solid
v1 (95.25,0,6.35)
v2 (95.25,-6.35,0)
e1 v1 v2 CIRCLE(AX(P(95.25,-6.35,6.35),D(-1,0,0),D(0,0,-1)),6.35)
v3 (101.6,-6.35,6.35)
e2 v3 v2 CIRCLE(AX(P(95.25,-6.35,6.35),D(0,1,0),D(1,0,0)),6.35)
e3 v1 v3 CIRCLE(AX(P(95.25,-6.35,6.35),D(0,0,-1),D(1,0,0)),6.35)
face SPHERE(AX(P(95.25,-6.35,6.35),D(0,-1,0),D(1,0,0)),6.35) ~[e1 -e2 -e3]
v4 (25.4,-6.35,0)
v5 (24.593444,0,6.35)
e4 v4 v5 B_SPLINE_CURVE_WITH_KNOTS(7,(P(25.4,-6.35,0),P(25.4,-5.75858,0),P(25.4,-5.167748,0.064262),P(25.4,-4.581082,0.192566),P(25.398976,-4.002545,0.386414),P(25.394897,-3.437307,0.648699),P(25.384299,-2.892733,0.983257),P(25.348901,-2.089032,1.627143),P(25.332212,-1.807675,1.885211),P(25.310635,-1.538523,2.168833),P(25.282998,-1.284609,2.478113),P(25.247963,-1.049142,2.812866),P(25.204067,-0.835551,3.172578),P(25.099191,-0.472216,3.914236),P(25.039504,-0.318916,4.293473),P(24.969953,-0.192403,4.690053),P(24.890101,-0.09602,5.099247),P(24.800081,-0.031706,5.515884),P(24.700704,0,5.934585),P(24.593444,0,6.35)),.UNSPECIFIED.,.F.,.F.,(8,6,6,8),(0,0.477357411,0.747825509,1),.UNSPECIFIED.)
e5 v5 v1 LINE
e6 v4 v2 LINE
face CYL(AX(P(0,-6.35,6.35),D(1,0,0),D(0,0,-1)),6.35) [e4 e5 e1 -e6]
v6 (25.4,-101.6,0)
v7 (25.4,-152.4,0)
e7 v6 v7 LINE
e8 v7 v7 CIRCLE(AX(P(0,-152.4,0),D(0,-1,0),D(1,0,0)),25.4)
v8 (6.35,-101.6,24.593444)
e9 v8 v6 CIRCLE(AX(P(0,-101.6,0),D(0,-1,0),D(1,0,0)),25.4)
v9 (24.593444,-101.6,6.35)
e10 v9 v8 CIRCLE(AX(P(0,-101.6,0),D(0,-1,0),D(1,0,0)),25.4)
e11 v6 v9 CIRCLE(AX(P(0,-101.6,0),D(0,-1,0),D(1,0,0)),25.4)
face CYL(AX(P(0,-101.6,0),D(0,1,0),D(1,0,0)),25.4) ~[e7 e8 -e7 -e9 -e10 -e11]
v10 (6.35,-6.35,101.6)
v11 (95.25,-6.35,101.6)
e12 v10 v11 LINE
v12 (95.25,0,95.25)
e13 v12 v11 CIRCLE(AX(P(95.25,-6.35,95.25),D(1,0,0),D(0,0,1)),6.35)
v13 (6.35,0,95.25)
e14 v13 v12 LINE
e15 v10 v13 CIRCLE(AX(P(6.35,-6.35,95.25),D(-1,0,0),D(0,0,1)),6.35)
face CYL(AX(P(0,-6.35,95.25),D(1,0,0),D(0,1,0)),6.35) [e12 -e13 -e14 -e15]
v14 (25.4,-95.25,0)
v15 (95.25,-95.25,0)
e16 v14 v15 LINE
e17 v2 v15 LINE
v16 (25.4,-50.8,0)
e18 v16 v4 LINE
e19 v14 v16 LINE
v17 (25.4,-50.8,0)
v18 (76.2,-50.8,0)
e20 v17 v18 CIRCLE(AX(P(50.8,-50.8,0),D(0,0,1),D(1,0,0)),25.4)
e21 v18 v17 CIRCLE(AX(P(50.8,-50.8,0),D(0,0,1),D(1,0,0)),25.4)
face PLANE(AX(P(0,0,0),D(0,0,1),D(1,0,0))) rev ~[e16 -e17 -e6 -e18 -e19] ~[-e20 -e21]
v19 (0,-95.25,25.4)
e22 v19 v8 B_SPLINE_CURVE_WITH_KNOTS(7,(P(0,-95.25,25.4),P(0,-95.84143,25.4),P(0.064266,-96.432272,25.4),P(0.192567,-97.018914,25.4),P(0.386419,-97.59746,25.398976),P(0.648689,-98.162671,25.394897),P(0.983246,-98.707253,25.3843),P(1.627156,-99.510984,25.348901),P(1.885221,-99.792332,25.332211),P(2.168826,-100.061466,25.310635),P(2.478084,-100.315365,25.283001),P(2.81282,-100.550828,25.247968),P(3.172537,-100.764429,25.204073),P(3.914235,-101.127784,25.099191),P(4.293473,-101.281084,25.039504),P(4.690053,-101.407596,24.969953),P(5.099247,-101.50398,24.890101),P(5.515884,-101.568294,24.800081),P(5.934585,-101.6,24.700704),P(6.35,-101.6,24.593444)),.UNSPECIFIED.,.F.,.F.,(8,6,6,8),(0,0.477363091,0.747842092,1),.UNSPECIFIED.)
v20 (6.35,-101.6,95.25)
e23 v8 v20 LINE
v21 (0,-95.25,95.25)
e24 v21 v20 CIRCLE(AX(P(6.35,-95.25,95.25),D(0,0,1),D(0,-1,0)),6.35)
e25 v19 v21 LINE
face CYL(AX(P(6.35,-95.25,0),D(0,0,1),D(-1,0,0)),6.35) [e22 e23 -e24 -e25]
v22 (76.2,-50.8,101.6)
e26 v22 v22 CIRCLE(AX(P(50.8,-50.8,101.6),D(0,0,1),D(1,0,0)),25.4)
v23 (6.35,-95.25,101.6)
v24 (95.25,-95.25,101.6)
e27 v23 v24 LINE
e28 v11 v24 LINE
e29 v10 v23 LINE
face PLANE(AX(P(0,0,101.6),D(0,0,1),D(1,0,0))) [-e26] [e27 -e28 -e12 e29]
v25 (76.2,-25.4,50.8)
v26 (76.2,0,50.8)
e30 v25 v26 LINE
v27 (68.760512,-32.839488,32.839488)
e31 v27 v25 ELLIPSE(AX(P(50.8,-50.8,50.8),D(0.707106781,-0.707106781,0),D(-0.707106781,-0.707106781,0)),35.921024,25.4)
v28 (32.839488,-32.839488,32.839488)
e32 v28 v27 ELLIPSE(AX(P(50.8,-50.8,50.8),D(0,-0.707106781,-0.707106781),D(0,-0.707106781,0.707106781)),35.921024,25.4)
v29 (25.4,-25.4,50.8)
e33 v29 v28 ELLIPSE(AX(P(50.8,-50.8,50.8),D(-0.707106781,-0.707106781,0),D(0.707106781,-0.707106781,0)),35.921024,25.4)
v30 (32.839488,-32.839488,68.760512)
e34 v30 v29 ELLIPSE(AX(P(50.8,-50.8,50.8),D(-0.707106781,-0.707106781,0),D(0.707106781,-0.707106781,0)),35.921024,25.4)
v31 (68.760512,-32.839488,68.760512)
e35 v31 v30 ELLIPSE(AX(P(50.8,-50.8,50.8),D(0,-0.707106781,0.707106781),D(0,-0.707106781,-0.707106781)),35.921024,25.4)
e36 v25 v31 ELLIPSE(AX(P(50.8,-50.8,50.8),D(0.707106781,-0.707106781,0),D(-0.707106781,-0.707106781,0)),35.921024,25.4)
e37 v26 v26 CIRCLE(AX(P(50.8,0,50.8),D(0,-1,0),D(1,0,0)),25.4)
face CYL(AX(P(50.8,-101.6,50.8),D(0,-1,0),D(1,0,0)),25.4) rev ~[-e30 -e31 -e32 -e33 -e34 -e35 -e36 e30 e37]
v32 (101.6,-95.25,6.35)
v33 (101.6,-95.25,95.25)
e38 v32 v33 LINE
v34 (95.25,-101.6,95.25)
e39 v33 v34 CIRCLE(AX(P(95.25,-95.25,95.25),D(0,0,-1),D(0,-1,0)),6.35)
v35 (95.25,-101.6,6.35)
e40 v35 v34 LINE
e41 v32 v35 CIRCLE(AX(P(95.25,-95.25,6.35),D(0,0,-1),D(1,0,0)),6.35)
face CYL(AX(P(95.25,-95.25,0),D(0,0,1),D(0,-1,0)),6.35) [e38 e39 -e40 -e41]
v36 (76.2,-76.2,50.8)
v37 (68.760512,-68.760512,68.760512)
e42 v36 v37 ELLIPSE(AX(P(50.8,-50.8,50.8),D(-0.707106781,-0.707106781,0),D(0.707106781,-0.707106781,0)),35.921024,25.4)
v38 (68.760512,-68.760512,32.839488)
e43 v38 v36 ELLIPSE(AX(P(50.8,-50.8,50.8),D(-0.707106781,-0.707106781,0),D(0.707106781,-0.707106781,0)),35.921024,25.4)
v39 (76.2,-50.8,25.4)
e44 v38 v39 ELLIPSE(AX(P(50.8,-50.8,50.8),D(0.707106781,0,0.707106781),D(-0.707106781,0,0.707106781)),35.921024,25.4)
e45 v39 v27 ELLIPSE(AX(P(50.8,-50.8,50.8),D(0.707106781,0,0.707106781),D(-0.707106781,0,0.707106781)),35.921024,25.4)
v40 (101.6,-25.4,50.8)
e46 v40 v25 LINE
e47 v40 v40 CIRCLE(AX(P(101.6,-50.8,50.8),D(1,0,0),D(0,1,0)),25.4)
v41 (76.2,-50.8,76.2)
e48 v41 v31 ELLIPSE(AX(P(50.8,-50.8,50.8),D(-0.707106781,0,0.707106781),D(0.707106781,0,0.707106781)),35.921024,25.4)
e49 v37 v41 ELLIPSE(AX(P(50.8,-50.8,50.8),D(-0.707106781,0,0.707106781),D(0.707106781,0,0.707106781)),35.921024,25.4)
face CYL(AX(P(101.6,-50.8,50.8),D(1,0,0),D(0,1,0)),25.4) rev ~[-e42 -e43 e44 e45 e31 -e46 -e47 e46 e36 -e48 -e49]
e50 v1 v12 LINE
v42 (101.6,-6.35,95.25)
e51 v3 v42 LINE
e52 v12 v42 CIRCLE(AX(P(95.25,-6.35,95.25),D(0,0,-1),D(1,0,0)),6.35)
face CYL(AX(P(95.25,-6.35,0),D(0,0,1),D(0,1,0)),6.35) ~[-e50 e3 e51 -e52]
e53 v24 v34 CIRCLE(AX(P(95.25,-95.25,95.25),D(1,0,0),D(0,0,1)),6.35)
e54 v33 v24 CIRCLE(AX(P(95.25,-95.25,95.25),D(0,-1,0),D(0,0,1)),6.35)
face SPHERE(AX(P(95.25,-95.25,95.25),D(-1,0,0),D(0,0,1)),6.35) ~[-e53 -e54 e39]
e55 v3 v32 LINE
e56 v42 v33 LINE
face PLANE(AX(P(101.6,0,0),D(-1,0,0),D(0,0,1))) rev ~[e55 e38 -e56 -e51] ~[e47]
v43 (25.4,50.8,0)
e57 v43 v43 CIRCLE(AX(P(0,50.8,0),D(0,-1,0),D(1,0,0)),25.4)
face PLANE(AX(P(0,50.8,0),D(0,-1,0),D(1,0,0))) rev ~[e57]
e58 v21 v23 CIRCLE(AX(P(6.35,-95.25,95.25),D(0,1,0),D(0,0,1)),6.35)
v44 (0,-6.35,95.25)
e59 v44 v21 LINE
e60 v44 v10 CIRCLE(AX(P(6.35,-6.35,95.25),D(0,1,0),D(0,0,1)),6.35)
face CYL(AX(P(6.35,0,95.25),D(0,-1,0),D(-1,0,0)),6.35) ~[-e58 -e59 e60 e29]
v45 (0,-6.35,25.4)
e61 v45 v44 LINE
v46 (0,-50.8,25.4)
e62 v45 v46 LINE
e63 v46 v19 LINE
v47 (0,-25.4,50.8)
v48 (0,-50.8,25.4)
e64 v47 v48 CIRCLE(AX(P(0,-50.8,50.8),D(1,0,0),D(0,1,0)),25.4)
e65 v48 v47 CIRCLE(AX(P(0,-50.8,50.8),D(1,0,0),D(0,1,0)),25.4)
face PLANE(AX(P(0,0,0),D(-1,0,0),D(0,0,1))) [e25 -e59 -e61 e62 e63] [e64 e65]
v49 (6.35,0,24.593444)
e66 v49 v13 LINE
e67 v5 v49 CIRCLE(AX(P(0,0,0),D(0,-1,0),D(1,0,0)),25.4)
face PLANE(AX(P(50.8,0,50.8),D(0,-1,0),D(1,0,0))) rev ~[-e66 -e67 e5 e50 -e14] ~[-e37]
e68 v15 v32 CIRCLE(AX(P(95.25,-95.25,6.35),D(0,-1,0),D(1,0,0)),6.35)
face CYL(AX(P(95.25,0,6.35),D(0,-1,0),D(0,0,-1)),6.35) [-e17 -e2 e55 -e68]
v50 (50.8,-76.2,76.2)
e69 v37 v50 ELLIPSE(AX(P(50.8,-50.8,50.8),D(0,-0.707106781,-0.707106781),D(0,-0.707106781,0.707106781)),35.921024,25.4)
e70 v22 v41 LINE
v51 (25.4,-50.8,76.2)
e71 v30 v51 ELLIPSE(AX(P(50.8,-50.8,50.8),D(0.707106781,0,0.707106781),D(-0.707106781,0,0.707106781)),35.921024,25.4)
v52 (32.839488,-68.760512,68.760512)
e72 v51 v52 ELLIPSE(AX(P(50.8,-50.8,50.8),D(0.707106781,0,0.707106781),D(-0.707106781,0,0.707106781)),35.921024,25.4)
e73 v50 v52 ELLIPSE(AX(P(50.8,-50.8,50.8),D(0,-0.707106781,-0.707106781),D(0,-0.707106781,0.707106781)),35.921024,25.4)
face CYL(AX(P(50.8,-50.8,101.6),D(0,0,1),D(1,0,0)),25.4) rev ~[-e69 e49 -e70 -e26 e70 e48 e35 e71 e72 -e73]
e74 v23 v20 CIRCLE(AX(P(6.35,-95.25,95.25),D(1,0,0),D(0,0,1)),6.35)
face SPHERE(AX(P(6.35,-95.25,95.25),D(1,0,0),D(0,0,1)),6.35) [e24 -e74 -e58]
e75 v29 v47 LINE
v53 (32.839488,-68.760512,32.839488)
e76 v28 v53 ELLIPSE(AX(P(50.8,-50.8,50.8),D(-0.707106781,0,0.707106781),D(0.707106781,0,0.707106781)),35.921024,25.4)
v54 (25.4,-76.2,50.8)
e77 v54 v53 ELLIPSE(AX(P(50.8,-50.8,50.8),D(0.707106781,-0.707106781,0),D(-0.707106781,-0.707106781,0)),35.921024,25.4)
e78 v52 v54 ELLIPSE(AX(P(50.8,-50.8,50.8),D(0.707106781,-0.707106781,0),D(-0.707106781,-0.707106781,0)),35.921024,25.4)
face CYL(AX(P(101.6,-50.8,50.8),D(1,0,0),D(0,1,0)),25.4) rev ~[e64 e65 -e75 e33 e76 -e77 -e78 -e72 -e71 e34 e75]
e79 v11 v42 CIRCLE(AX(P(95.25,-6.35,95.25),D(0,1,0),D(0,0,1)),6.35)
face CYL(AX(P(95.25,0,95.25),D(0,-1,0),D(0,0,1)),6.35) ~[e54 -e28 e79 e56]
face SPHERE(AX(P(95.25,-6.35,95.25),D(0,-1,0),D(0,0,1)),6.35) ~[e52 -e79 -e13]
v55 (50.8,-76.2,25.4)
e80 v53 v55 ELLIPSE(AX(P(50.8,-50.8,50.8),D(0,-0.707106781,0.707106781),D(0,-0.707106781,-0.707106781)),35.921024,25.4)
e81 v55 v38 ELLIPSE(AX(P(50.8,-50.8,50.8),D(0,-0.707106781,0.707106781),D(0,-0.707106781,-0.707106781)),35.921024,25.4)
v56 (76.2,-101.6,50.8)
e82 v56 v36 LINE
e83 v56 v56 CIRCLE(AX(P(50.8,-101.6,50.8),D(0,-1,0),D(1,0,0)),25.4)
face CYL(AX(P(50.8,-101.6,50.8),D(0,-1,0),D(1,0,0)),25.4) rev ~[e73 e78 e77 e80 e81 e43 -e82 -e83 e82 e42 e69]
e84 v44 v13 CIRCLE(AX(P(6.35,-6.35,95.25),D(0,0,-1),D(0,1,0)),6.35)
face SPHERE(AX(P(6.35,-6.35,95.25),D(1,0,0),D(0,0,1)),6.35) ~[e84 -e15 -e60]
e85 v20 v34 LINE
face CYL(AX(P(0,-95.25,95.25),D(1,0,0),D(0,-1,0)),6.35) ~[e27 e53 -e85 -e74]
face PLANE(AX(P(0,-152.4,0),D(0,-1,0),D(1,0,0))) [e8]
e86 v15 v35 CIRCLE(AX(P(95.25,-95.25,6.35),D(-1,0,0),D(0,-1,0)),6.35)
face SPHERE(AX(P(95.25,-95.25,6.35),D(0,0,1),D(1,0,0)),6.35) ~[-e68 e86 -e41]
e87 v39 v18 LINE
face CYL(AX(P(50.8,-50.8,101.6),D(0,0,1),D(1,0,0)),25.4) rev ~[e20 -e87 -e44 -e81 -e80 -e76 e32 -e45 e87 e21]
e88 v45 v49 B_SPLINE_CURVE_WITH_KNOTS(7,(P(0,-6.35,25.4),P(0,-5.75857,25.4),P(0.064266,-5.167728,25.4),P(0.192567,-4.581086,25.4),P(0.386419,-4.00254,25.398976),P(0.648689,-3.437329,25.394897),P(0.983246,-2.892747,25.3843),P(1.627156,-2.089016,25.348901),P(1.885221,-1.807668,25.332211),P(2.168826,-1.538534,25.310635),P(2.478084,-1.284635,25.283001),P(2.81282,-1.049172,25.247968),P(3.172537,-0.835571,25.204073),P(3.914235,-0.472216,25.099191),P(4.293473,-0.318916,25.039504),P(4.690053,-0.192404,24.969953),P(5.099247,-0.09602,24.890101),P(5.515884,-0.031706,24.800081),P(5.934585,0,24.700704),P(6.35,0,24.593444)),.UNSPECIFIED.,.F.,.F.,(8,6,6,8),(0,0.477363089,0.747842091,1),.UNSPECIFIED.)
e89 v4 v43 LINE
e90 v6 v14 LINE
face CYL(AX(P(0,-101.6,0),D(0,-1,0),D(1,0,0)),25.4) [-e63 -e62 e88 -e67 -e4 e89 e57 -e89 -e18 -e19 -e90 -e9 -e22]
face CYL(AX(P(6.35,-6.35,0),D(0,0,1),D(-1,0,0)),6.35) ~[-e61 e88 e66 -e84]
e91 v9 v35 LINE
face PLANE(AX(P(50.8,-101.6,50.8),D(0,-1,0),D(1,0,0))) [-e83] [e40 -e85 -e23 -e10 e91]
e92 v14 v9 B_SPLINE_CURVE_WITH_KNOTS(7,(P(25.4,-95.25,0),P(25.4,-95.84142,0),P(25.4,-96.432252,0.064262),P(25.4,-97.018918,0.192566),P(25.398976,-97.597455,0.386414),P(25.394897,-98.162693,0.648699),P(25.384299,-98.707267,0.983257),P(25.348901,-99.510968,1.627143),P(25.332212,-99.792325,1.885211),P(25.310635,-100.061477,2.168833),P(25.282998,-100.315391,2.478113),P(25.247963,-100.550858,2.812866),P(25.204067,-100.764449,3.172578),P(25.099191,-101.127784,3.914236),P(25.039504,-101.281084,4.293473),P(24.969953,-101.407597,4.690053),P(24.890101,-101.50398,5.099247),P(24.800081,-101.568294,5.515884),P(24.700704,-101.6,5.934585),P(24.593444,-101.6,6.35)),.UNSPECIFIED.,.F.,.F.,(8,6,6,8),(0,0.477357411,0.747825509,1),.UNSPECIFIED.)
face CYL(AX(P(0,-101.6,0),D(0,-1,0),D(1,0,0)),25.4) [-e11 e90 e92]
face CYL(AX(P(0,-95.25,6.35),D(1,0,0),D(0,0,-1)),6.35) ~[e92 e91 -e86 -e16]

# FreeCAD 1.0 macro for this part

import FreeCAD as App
import Part
import Sketcher

V = App.Vector
Q = App.Units.Quantity


def edges_at(feature, points):
    """Names of the edges that pass closest to the given points."""
    edges = feature.Shape.Edges
    near = lambda p: min(range(len(edges)), key=lambda i: edges[i].distToShape(Part.Vertex(*p))[0])
    return sorted({f"Edge{near(p) + 1}" for p in points})

doc = App.newDocument("Part")
body = doc.addObject("PartDesign::Body", "Body")

# Sketch on XZ plane
sketch1 = body.newObject("Sketcher::SketchObject", "Sketch")
sketch1.AttachmentSupport = (doc.getObject("XZ_Plane"), [""])
sketch1.MapMode = "FlatFace"
sketch1.addGeometry(Part.LineSegment(V(0, 102, 0), V(0, 0, 0)), False)
sketch1.addGeometry(Part.LineSegment(V(0, 0, 0), V(102, 0, 0)), False)
sketch1.addGeometry(Part.LineSegment(V(102, 0, 0), V(102, 102, 0)), False)
sketch1.addGeometry(Part.LineSegment(V(102, 102, 0), V(0, 102, 0)), False)
sketch1.addConstraint(Sketcher.Constraint("Coincident", 0, 2, 1, 1))
sketch1.addConstraint(Sketcher.Constraint("Coincident", 1, 2, 2, 1))
sketch1.addConstraint(Sketcher.Constraint("Coincident", 2, 2, 3, 1))
sketch1.addConstraint(Sketcher.Constraint("Coincident", 3, 2, 0, 1))
sketch1.addConstraint(Sketcher.Constraint("Vertical", 0))
sketch1.addConstraint(Sketcher.Constraint("Horizontal", 1))
sketch1.addConstraint(Sketcher.Constraint("Vertical", 2))
sketch1.addConstraint(Sketcher.Constraint("Horizontal", 3))
sketch1.addConstraint(Sketcher.Constraint("Coincident", 0, 2, -1, 1))
sketch1.addConstraint(Sketcher.Constraint("Equal", 3, 0))
sketch1.addConstraint(Sketcher.Constraint("DistanceX", 1, 1, 1, 2, Q("4 in")))
pad1 = body.newObject("PartDesign::Pad", "Pad")
pad1.Profile = sketch1
pad1.Length = Q("4 in")

# Sketch on XZ plane
sketch2 = body.newObject("Sketcher::SketchObject", "Sketch001")
sketch2.AttachmentSupport = (doc.getObject("XZ_Plane"), [""])
sketch2.MapMode = "FlatFace"
sketch2.AttachmentOffset = App.Placement(V(0, 0, 4 * 25.4), App.Rotation())
sketch2.addGeometry(Part.Circle(V(51, 51, 0), V(0, 0, 1), 25), False)
sketch2.addConstraint(Sketcher.Constraint("Diameter", 0, Q("2 in")))
sketch2.addConstraint(Sketcher.Constraint("DistanceX", -1, 1, 0, 3, Q("2 in")))
sketch2.addConstraint(Sketcher.Constraint("DistanceY", -1, 1, 0, 3, Q("2 in")))
pocket1 = body.newObject("PartDesign::Pocket", "Pocket")
pocket1.Profile = sketch2
pocket1.Length = Q("4 in")

# Sketch on XY plane
sketch3 = body.newObject("Sketcher::SketchObject", "Sketch002")
sketch3.AttachmentSupport = (doc.getObject("XY_Plane"), [""])
sketch3.MapMode = "FlatFace"
sketch3.AttachmentOffset = App.Placement(V(0, 0, 4 * 25.4), App.Rotation())
sketch3.addGeometry(Part.Circle(V(51, -51, 0), V(0, 0, 1), 25), False)
sketch3.addConstraint(Sketcher.Constraint("Diameter", 0, Q("2 in")))
sketch3.addConstraint(Sketcher.Constraint("DistanceX", -1, 1, 0, 3, Q("2 in")))
sketch3.addConstraint(Sketcher.Constraint("DistanceY", 0, 3, -1, 1, Q("2 in")))
pocket2 = body.newObject("PartDesign::Pocket", "Pocket001")
pocket2.Profile = sketch3
pocket2.Length = Q("4 in")

# Sketch on YZ plane
sketch4 = body.newObject("Sketcher::SketchObject", "Sketch003")
sketch4.AttachmentSupport = (doc.getObject("YZ_Plane"), [""])
sketch4.MapMode = "FlatFace"
sketch4.AttachmentOffset = App.Placement(V(0, 0, 4 * 25.4), App.Rotation())
sketch4.addGeometry(Part.Circle(V(-51, 51, 0), V(0, 0, 1), 25), False)
sketch4.addConstraint(Sketcher.Constraint("Diameter", 0, Q("2 in")))
sketch4.addConstraint(Sketcher.Constraint("DistanceX", 0, 3, -1, 1, Q("2 in")))
sketch4.addConstraint(Sketcher.Constraint("DistanceY", -1, 1, 0, 3, Q("2 in")))
pocket3 = body.newObject("PartDesign::Pocket", "Pocket002")
pocket3.Profile = sketch4
pocket3.Length = Q("4 in")
doc.recompute()

fillet = body.newObject("PartDesign::Fillet", "Fillet")
fillet.Base = (pocket3, edges_at(pocket3, [
    (50.8, -101.6, 101.6),
    (101.6, -50.8, 101.6),
    (101.6, -101.6, 50.8),
    (101.6, -50.8, 0),
    (50.8, -101.6, 0),
    (50.8, 0, 101.6),
    (0, -50.8, 101.6),
    (0, -101.6, 50.8),
    (101.6, 0, 50.8),
    (0, -50.8, 0),
    (0, 0, 50.8),
    (50.8, 0, 0),
]))
fillet.Radius = Q("0.25 in")

# Sketch on XZ plane
sketch5 = body.newObject("Sketcher::SketchObject", "Sketch004")
sketch5.AttachmentSupport = (doc.getObject("XZ_Plane"), [""])
sketch5.MapMode = "FlatFace"
sketch5.AttachmentOffset = App.Placement(V(0, 0, 4 * 25.4), App.Rotation())
sketch5.addGeometry(Part.Circle(V(0, 0, 0), V(0, 0, 1), 25), False)
sketch5.addConstraint(Sketcher.Constraint("Coincident", 0, 3, -1, 1))
sketch5.addConstraint(Sketcher.Constraint("Diameter", 0, Q("2 in")))
pad2 = body.newObject("PartDesign::Pad", "Pad001")
pad2.Profile = sketch5
pad2.Type = "TwoLengths"
pad2.Length = Q("2 in")
pad2.Length2 = Q("6 in")

doc.recompute()
